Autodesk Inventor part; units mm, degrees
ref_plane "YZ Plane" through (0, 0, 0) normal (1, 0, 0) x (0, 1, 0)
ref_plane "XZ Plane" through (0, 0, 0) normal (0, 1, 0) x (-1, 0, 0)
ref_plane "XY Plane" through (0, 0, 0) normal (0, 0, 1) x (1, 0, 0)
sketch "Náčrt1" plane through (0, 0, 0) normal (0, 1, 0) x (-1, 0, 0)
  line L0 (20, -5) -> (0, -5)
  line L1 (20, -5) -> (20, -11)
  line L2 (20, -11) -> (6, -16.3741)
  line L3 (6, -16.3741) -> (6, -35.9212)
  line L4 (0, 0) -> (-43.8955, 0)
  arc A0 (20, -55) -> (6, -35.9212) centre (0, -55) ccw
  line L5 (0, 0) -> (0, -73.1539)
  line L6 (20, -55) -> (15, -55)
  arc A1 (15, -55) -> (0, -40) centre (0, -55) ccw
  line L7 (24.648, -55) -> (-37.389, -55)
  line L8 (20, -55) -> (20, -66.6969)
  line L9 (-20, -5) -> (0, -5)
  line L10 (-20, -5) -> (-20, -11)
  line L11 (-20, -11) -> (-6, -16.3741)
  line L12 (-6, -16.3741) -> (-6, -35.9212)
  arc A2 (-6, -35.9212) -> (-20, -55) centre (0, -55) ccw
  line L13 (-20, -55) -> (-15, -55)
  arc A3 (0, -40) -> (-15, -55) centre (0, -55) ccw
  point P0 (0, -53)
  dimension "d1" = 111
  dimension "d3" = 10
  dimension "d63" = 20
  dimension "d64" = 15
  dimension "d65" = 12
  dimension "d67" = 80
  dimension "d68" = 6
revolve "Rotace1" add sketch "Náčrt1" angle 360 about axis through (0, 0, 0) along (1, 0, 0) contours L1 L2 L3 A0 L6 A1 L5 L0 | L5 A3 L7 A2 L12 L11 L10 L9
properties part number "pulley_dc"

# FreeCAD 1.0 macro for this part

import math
import FreeCAD as App
import Part
import Sketcher

V = App.Vector
Q = App.Units.Quantity

doc = App.newDocument("Part")
body = doc.addObject("PartDesign::Body", "Body")

sketch1 = doc.addObject("Sketcher::SketchObject", "Sketch")
body.addObject(sketch1)
sketch1.AttachmentSupport = (doc.XZ_Plane, [""])
sketch1.MapMode = "FlatFace"
sketch1.addGeometry([
    Part.LineSegment(V(-20, -11, 0), V(-20, -5, 0)),
    Part.LineSegment(V(-20, -5, 0), V(20, -5, 0)),
    Part.LineSegment(V(20, -5, 0), V(20, -11, 0)),
    Part.LineSegment(V(20, -11, 0), V(6, -16, 0)),
    Part.LineSegment(V(6, -16, 0), V(6, -36, 0)),
    Part.ArcOfCircle(Part.Circle(V(0, -55, 0), V(0, 0, 1), 20), math.radians(0), math.radians(73)),
    Part.LineSegment(V(20, -55, 0), V(15, -55, 0)),
    Part.ArcOfCircle(Part.Circle(V(0, -55, 0), V(0, 0, 1), 15), math.radians(0), math.radians(180)),
    Part.LineSegment(V(-15, -55, 0), V(-20, -55, 0)),
    Part.ArcOfCircle(Part.Circle(V(0, -55, 0), V(0, 0, 1), 20), math.radians(107), math.radians(180)),
    Part.LineSegment(V(-6, -36, 0), V(-6, -16, 0)),
    Part.LineSegment(V(-6, -16, 0), V(-20, -11, 0)),
], False)
sketch1.addConstraint([
    Sketcher.Constraint("Coincident", 0, 2, 1, 1),
    Sketcher.Constraint("Coincident", 1, 2, 2, 1),
    Sketcher.Constraint("Coincident", 2, 2, 3, 1),
    Sketcher.Constraint("Coincident", 3, 2, 4, 1),
    Sketcher.Constraint("Coincident", 4, 2, 5, 2),
    Sketcher.Constraint("Coincident", 5, 1, 6, 1),
    Sketcher.Constraint("Coincident", 6, 2, 7, 1),
    Sketcher.Constraint("Coincident", 7, 2, 8, 1),
    Sketcher.Constraint("Coincident", 8, 2, 9, 2),
    Sketcher.Constraint("Coincident", 9, 1, 10, 1),
    Sketcher.Constraint("Coincident", 10, 2, 11, 1),
    Sketcher.Constraint("Coincident", 11, 2, 0, 1),
    Sketcher.Constraint("Vertical", 0),
    Sketcher.Constraint("Horizontal", 1),
    Sketcher.Constraint("Vertical", 2),
    Sketcher.Constraint("Vertical", 4),
    Sketcher.Constraint("Horizontal", 6),
    Sketcher.Constraint("Horizontal", 8),
    Sketcher.Constraint("Vertical", 10),
    Sketcher.Constraint("Coincident", 7, 3, 5, 3),
    Sketcher.Constraint("Coincident", 9, 3, 5, 3),
    Sketcher.Constraint("Equal", 5, 9),
    Sketcher.Constraint("Symmetric", 6, 2, 7, 2, -2),
    Sketcher.Constraint("Symmetric", 3, 2, 10, 2, -2),
    Sketcher.Constraint("Symmetric", 2, 2, 11, 2, -2),
    Sketcher.Constraint("Horizontal", 9, 3, 5, 1),
    Sketcher.Constraint("Vertical", 2, 2, 5, 1),
    Sketcher.Constraint("Radius", 5, 20.0),
    Sketcher.Constraint("Radius", 7, 15.0),
    Sketcher.Constraint("DistanceY", 0, 1, 0, 2, 6.0),
    Sketcher.Constraint("DistanceX", -1, 1, 3, 2, 6.0),
    Sketcher.Constraint("Angle", 3, Q("-159 deg")),
    Sketcher.Constraint("DistanceY", 5, 3, -1, 1, 55.0),
    Sketcher.Constraint("DistanceY", 0, 2, -1, 1, 5.0),
])
revolution = doc.addObject("PartDesign::Revolution", "Revolution")
body.addObject(revolution)
revolution.Profile = sketch1
revolution.ReferenceAxis = (sketch1, ["H_Axis"])
revolution.Angle = 360

doc.recompute()
